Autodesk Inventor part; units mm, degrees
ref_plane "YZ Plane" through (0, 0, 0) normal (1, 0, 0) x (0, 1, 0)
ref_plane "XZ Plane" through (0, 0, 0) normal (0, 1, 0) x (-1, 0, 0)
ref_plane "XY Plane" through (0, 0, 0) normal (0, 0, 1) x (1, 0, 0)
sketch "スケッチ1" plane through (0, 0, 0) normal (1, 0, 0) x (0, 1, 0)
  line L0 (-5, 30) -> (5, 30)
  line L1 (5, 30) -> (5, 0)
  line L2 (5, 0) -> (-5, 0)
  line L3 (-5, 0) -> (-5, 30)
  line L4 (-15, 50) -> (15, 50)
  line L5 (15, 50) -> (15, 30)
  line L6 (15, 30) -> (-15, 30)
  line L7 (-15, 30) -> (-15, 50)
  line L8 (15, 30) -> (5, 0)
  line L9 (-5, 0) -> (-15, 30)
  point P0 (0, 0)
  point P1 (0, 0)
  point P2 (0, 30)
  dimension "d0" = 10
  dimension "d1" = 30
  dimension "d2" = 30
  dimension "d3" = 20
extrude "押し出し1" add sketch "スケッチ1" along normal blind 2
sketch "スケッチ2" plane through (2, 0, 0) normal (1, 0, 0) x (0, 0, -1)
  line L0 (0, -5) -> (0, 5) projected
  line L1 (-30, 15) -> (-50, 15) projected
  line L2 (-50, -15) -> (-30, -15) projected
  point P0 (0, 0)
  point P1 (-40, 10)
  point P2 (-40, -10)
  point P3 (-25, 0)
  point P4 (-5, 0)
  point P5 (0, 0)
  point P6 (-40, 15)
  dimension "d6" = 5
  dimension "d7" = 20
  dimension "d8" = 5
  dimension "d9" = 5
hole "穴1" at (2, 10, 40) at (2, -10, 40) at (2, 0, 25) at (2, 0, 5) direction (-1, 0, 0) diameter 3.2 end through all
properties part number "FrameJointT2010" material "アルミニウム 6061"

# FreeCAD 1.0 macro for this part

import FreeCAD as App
import Part
import Sketcher
Q = App.Units.Quantity


def add_polygon(sketch, points):
    """Adds a closed chain of lines whose ends are joined by coincident constraints."""
    first, n = sketch.GeometryCount, len(points)
    for a, b in zip(points, points[1:] + points[:1]):
        sketch.addGeometry(Part.LineSegment(App.Vector(*a, 0), App.Vector(*b, 0)), False)
    for i in range(n):
        sketch.addConstraint(Sketcher.Constraint("Coincident", first + i, 2, first + (i + 1) % n, 1))

doc = App.newDocument("Part")
body = doc.addObject("PartDesign::Body", "Body")

# Sketch on YZ plane
sketch1 = doc.addObject("Sketcher::SketchObject", "Sketch")
body.addObject(sketch1)
sketch1.AttachmentSupport = (doc.YZ_Plane, [""])
sketch1.MapMode = "FlatFace"
add_polygon(sketch1, [(-15, 50), (-15, 30), (-5, 0), (5, 0), (15, 30), (15, 50)])  # lines 0-5
sketch1.addConstraint(Sketcher.Constraint("Vertical", 0))
sketch1.addConstraint(Sketcher.Constraint("Horizontal", 2))
sketch1.addConstraint(Sketcher.Constraint("Vertical", 4))
sketch1.addConstraint(Sketcher.Constraint("Horizontal", 5))
sketch1.addConstraint(Sketcher.Constraint("Symmetric", 1, 2, 2, 2, -1, 1))
sketch1.addConstraint(Sketcher.Constraint("Symmetric", 0, 2, 3, 2, -2))
sketch1.addConstraint(Sketcher.Constraint("DistanceX", 2, 1, 2, 2, Q("10 mm")))
sketch1.addConstraint(Sketcher.Constraint("DistanceX", 5, 2, 5, 1, Q("30 mm")))
sketch1.addConstraint(Sketcher.Constraint("DistanceY", 0, 2, 0, 1, Q("20 mm")))
sketch1.addConstraint(Sketcher.Constraint("DistanceY", -1, 1, 0, 2, Q("30 mm")))
pad1 = doc.addObject("PartDesign::Pad", "Pad")
body.addObject(pad1)
pad1.Profile = sketch1
pad1.Length = 2

# Sketch on YZ plane
sketch2 = doc.addObject("Sketcher::SketchObject", "Sketch001")
body.addObject(sketch2)
sketch2.AttachmentSupport = (doc.YZ_Plane, [""])
sketch2.MapMode = "FlatFace"
sketch2.AttachmentOffset = App.Placement(App.Vector(0, 0, 2), App.Rotation())
sketch2.addGeometry(Part.Circle(App.Vector(10, 40, 0), App.Vector(0, 0, 1), 1.6), False)
sketch2.addGeometry(Part.Circle(App.Vector(-10, 40, 0), App.Vector(0, 0, 1), 1.6), False)
sketch2.addGeometry(Part.Circle(App.Vector(0, 25, 0), App.Vector(0, 0, 1), 1.6), False)
sketch2.addGeometry(Part.Circle(App.Vector(0, 5, 0), App.Vector(0, 0, 1), 1.6), False)
sketch2.addConstraint(Sketcher.Constraint("Equal", 0, 1))
sketch2.addConstraint(Sketcher.Constraint("Equal", 1, 2))
sketch2.addConstraint(Sketcher.Constraint("Equal", 2, 3))
sketch2.addConstraint(Sketcher.Constraint("Symmetric", 0, 3, 1, 3, -2))
sketch2.addConstraint(Sketcher.Constraint("PointOnObject", 2, 3, -2))
sketch2.addConstraint(Sketcher.Constraint("PointOnObject", 3, 3, -2))
sketch2.addConstraint(Sketcher.Constraint("Diameter", 0, Q("3.2 mm")))
sketch2.addConstraint(Sketcher.Constraint("DistanceX", -1, 1, 0, 3, Q("10 mm")))
sketch2.addConstraint(Sketcher.Constraint("DistanceY", -1, 1, 0, 3, Q("40 mm")))
sketch2.addConstraint(Sketcher.Constraint("DistanceY", -1, 1, 2, 3, Q("25 mm")))
sketch2.addConstraint(Sketcher.Constraint("DistanceY", -1, 1, 3, 3, Q("5 mm")))
doc.recompute()
hole = doc.addObject("PartDesign::Hole", "Hole")
body.addObject(hole)
hole.Profile = sketch2
hole.ThreadType = "None"
hole.Diameter = 3.2
hole.DepthType = "ThroughAll"

doc.recompute()
